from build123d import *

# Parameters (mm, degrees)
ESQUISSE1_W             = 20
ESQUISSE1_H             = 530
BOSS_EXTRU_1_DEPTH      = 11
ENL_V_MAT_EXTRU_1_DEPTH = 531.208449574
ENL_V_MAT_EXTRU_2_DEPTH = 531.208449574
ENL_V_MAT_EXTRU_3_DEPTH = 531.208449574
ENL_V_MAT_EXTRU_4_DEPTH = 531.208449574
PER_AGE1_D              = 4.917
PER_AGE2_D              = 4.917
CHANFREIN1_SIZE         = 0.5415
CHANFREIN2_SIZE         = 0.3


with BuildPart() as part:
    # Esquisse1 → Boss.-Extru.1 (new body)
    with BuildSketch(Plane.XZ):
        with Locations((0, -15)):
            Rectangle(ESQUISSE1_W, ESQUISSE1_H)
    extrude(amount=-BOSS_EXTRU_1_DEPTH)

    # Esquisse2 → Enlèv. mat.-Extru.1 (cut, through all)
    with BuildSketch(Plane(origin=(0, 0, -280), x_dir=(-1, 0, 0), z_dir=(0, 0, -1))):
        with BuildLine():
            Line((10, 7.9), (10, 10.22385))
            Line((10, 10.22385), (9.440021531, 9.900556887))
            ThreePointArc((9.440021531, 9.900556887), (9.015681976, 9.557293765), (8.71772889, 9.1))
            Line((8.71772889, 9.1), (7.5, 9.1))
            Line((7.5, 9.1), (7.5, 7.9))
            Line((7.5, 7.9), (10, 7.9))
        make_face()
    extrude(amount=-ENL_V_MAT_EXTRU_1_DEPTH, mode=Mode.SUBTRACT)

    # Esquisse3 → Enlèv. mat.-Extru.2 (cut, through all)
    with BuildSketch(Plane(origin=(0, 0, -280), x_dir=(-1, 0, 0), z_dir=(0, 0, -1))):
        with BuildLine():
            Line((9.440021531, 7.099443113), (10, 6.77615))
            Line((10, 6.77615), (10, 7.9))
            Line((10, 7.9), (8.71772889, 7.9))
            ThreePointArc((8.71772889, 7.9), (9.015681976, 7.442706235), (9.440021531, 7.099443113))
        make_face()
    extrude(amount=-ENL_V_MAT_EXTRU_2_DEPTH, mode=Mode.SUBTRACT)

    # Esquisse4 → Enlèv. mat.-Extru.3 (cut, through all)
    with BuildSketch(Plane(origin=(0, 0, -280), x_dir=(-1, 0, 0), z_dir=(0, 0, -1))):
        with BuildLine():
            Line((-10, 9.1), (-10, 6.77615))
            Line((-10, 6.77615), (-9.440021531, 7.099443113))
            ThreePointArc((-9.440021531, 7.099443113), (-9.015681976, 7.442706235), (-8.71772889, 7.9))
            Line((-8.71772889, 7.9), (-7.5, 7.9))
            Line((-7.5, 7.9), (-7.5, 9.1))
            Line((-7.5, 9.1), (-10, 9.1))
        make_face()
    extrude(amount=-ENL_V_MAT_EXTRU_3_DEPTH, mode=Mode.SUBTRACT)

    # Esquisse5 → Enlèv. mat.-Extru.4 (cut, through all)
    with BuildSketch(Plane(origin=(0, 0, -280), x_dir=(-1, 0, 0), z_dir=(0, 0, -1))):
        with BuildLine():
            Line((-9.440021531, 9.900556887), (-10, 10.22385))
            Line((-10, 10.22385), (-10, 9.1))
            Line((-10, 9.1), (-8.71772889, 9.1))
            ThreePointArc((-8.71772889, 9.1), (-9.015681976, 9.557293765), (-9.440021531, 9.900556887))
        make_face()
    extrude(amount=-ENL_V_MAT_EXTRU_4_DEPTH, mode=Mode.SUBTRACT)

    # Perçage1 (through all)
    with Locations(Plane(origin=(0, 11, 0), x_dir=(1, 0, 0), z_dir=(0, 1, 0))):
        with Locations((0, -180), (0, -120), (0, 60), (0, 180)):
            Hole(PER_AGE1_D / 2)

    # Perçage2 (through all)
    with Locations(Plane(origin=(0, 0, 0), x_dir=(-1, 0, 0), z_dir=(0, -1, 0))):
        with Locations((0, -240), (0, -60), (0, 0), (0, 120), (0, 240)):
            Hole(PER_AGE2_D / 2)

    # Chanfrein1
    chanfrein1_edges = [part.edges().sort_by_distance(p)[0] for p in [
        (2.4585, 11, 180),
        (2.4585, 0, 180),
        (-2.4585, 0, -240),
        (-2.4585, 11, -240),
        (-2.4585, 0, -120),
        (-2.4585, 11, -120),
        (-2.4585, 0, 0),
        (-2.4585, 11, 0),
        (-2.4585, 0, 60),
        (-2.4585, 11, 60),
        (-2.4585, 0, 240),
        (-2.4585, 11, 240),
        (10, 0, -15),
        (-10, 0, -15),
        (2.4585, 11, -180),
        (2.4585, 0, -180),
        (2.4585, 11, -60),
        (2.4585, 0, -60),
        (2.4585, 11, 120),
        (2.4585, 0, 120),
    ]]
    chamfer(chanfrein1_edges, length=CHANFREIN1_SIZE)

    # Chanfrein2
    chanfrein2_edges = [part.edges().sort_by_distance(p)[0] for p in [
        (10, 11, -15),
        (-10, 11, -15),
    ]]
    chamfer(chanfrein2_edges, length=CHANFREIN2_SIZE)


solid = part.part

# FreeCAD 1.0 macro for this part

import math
import FreeCAD as App
import Part
import Sketcher
from FreeCAD import Vector


def edges_at(feature, points):
    """Names of the edges that pass closest to the given points."""
    edges = feature.Shape.Edges
    near = lambda p: min(range(len(edges)), key=lambda i: edges[i].distToShape(Part.Vertex(*p))[0])
    return sorted({f"Edge{near(p) + 1}" for p in points})

doc = App.newDocument("Part")
body = doc.addObject("PartDesign::Body", "Body")

# Sketch on XZ plane
sketch1 = doc.addObject("Sketcher::SketchObject", "Sketch")
body.addObject(sketch1)
sketch1.AttachmentSupport = (doc.XZ_Plane, [""])
sketch1.MapMode = "FlatFace"
sketch1.addGeometry(Part.LineSegment(Vector(-10, 250, 0), Vector(-10, -280, 0)), False)
sketch1.addGeometry(Part.LineSegment(Vector(-10, -280, 0), Vector(10, -280, 0)), False)
sketch1.addGeometry(Part.LineSegment(Vector(10, -280, 0), Vector(10, 250, 0)), False)
sketch1.addGeometry(Part.LineSegment(Vector(10, 250, 0), Vector(-10, 250, 0)), False)
sketch1.addConstraint(Sketcher.Constraint("Coincident", 0, 2, 1, 1))
sketch1.addConstraint(Sketcher.Constraint("Coincident", 1, 2, 2, 1))
sketch1.addConstraint(Sketcher.Constraint("Coincident", 2, 2, 3, 1))
sketch1.addConstraint(Sketcher.Constraint("Coincident", 3, 2, 0, 1))
sketch1.addConstraint(Sketcher.Constraint("Vertical", 0))
sketch1.addConstraint(Sketcher.Constraint("Horizontal", 1))
sketch1.addConstraint(Sketcher.Constraint("Vertical", 2))
sketch1.addConstraint(Sketcher.Constraint("Horizontal", 3))
sketch1.addConstraint(Sketcher.Constraint("DistanceX", 1, 1, 1, 2, 20.0))
sketch1.addConstraint(Sketcher.Constraint("DistanceY", 0, 2, 0, 1, 530.0))
sketch1.addConstraint(Sketcher.Constraint("DistanceX", 0, 2, -1, 1, 10.0))
sketch1.addConstraint(Sketcher.Constraint("DistanceY", 0, 2, -1, 1, 280.0))
pad1 = doc.addObject("PartDesign::Pad", "Pad")
body.addObject(pad1)
pad1.Profile = sketch1
pad1.Length = 11
pad1.Reversed = True

# Sketch on XY plane
sketch2 = doc.addObject("Sketcher::SketchObject", "Sketch001")
body.addObject(sketch2)
sketch2.AttachmentSupport = (doc.XY_Plane, [""])
sketch2.MapMode = "FlatFace"
sketch2.AttachmentOffset = App.Placement(Vector(0, 0, -280), App.Rotation())
sketch2.addGeometry(Part.LineSegment(Vector(-10, 7.9, 0), Vector(-10, 10.2, 0)), False)
sketch2.addGeometry(Part.LineSegment(Vector(-10, 10.2, 0), Vector(-9.4, 9.9, 0)), False)
sketch2.addGeometry(Part.ArcOfCircle(Part.Circle(Vector(-10.3, 8.4, 0), Vector(0, 0, 1), 1.7), math.radians(24), math.radians(60)), False)
sketch2.addGeometry(Part.LineSegment(Vector(-8.7, 9.1, 0), Vector(-7.5, 9.1, 0)), False)
sketch2.addGeometry(Part.LineSegment(Vector(-7.5, 9.1, 0), Vector(-7.5, 7.9, 0)), False)
sketch2.addGeometry(Part.LineSegment(Vector(-7.5, 7.9, 0), Vector(-10, 7.9, 0)), False)
sketch2.addConstraint(Sketcher.Constraint("Coincident", 0, 2, 1, 1))
sketch2.addConstraint(Sketcher.Constraint("Tangent", 1, 2, 2, 2))
sketch2.addConstraint(Sketcher.Constraint("Coincident", 2, 1, 3, 1))
sketch2.addConstraint(Sketcher.Constraint("Coincident", 3, 2, 4, 1))
sketch2.addConstraint(Sketcher.Constraint("Coincident", 4, 2, 5, 1))
sketch2.addConstraint(Sketcher.Constraint("Coincident", 5, 2, 0, 1))
sketch2.addConstraint(Sketcher.Constraint("Vertical", 0))
sketch2.addConstraint(Sketcher.Constraint("Horizontal", 3))
sketch2.addConstraint(Sketcher.Constraint("Vertical", 4))
sketch2.addConstraint(Sketcher.Constraint("Horizontal", 5))
sketch2.addConstraint(Sketcher.Constraint("Radius", 2, 1.75))
sketch2.addConstraint(Sketcher.Constraint("DistanceX", 5, 2, 5, 1, 2.5))
sketch2.addConstraint(Sketcher.Constraint("DistanceY", 4, 2, 4, 1, 1.2))
sketch2.addConstraint(Sketcher.Constraint("DistanceX", 0, 2, -1, 1, 10.0))
sketch2.addConstraint(Sketcher.Constraint("DistanceY", -1, 1, 2, 1, 9.1))
sketch2.addConstraint(Sketcher.Constraint("DistanceX", 2, 3, -1, 1, 10.315))
sketch2.addConstraint(Sketcher.Constraint("DistanceY", -1, 1, 2, 3, 8.385))
sketch2.addConstraint(Sketcher.Constraint("DistanceY", 0, 1, 0, 2, 2.32385))
pocket1 = doc.addObject("PartDesign::Pocket", "Pocket")
body.addObject(pocket1)
pocket1.Profile = sketch2
pocket1.Type = "ThroughAll"
pocket1.Reversed = True

# Sketch on XY plane
sketch3 = doc.addObject("Sketcher::SketchObject", "Sketch002")
body.addObject(sketch3)
sketch3.AttachmentSupport = (doc.XY_Plane, [""])
sketch3.MapMode = "FlatFace"
sketch3.AttachmentOffset = App.Placement(Vector(0, 0, -280), App.Rotation())
sketch3.addGeometry(Part.LineSegment(Vector(-9.4, 7.1, 0), Vector(-10, 6.8, 0)), False)
sketch3.addGeometry(Part.LineSegment(Vector(-10, 6.8, 0), Vector(-10, 7.9, 0)), False)
sketch3.addGeometry(Part.LineSegment(Vector(-10, 7.9, 0), Vector(-8.7, 7.9, 0)), False)
sketch3.addGeometry(Part.ArcOfCircle(Part.Circle(Vector(-10.3, 8.6, 0), Vector(0, 0, 1), 1.7), math.radians(-60), math.radians(-24)), False)
sketch3.addConstraint(Sketcher.Constraint("Coincident", 0, 2, 1, 1))
sketch3.addConstraint(Sketcher.Constraint("Coincident", 1, 2, 2, 1))
sketch3.addConstraint(Sketcher.Constraint("Coincident", 2, 2, 3, 2))
sketch3.addConstraint(Sketcher.Constraint("Tangent", 3, 1, 0, 1))
sketch3.addConstraint(Sketcher.Constraint("Vertical", 1))
sketch3.addConstraint(Sketcher.Constraint("Horizontal", 2))
sketch3.addConstraint(Sketcher.Constraint("Radius", 3, 1.75))
sketch3.addConstraint(Sketcher.Constraint("DistanceX", 0, 2, -1, 1, 10.0))
sketch3.addConstraint(Sketcher.Constraint("DistanceY", -1, 1, 1, 2, 7.9))
sketch3.addConstraint(Sketcher.Constraint("DistanceX", 3, 3, -1, 1, 10.315))
sketch3.addConstraint(Sketcher.Constraint("DistanceY", -1, 1, 3, 3, 8.615))
sketch3.addConstraint(Sketcher.Constraint("DistanceY", 1, 1, 1, 2, 1.12385))
pocket2 = doc.addObject("PartDesign::Pocket", "Pocket001")
body.addObject(pocket2)
pocket2.Profile = sketch3
pocket2.Type = "ThroughAll"
pocket2.Reversed = True

# Sketch on XY plane
sketch4 = doc.addObject("Sketcher::SketchObject", "Sketch003")
body.addObject(sketch4)
sketch4.AttachmentSupport = (doc.XY_Plane, [""])
sketch4.MapMode = "FlatFace"
sketch4.AttachmentOffset = App.Placement(Vector(0, 0, -280), App.Rotation())
sketch4.addGeometry(Part.LineSegment(Vector(10, 9.1, 0), Vector(10, 6.8, 0)), False)
sketch4.addGeometry(Part.LineSegment(Vector(10, 6.8, 0), Vector(9.4, 7.1, 0)), False)
sketch4.addGeometry(Part.ArcOfCircle(Part.Circle(Vector(10.3, 8.6, 0), Vector(0, 0, 1), 1.7), math.radians(-156), math.radians(-120)), False)
sketch4.addGeometry(Part.LineSegment(Vector(8.7, 7.9, 0), Vector(7.5, 7.9, 0)), False)
sketch4.addGeometry(Part.LineSegment(Vector(7.5, 7.9, 0), Vector(7.5, 9.1, 0)), False)
sketch4.addGeometry(Part.LineSegment(Vector(7.5, 9.1, 0), Vector(10, 9.1, 0)), False)
sketch4.addConstraint(Sketcher.Constraint("Coincident", 0, 2, 1, 1))
sketch4.addConstraint(Sketcher.Constraint("Tangent", 1, 2, 2, 2))
sketch4.addConstraint(Sketcher.Constraint("Coincident", 2, 1, 3, 1))
sketch4.addConstraint(Sketcher.Constraint("Coincident", 3, 2, 4, 1))
sketch4.addConstraint(Sketcher.Constraint("Coincident", 4, 2, 5, 1))
sketch4.addConstraint(Sketcher.Constraint("Coincident", 5, 2, 0, 1))
sketch4.addConstraint(Sketcher.Constraint("Vertical", 0))
sketch4.addConstraint(Sketcher.Constraint("Horizontal", 3))
sketch4.addConstraint(Sketcher.Constraint("Vertical", 4))
sketch4.addConstraint(Sketcher.Constraint("Horizontal", 5))
sketch4.addConstraint(Sketcher.Constraint("Radius", 2, 1.75))
sketch4.addConstraint(Sketcher.Constraint("DistanceX", 5, 1, 5, 2, 2.5))
sketch4.addConstraint(Sketcher.Constraint("DistanceY", 4, 1, 4, 2, 1.2))
sketch4.addConstraint(Sketcher.Constraint("DistanceX", -1, 1, 0, 2, 10.0))
sketch4.addConstraint(Sketcher.Constraint("DistanceY", -1, 1, 2, 1, 7.9))
sketch4.addConstraint(Sketcher.Constraint("DistanceX", -1, 1, 2, 3, 10.315))
sketch4.addConstraint(Sketcher.Constraint("DistanceY", -1, 1, 2, 3, 8.615))
sketch4.addConstraint(Sketcher.Constraint("DistanceY", 0, 2, 0, 1, 2.32385))
pocket3 = doc.addObject("PartDesign::Pocket", "Pocket002")
body.addObject(pocket3)
pocket3.Profile = sketch4
pocket3.Type = "ThroughAll"
pocket3.Reversed = True

# Sketch on XY plane
sketch5 = doc.addObject("Sketcher::SketchObject", "Sketch004")
body.addObject(sketch5)
sketch5.AttachmentSupport = (doc.XY_Plane, [""])
sketch5.MapMode = "FlatFace"
sketch5.AttachmentOffset = App.Placement(Vector(0, 0, -280), App.Rotation())
sketch5.addGeometry(Part.LineSegment(Vector(9.4, 9.9, 0), Vector(10, 10.2, 0)), False)
sketch5.addGeometry(Part.LineSegment(Vector(10, 10.2, 0), Vector(10, 9.1, 0)), False)
sketch5.addGeometry(Part.LineSegment(Vector(10, 9.1, 0), Vector(8.7, 9.1, 0)), False)
sketch5.addGeometry(Part.ArcOfCircle(Part.Circle(Vector(10.3, 8.4, 0), Vector(0, 0, 1), 1.7), math.radians(120), math.radians(156)), False)
sketch5.addConstraint(Sketcher.Constraint("Coincident", 0, 2, 1, 1))
sketch5.addConstraint(Sketcher.Constraint("Coincident", 1, 2, 2, 1))
sketch5.addConstraint(Sketcher.Constraint("Coincident", 2, 2, 3, 2))
sketch5.addConstraint(Sketcher.Constraint("Tangent", 3, 1, 0, 1))
sketch5.addConstraint(Sketcher.Constraint("Vertical", 1))
sketch5.addConstraint(Sketcher.Constraint("Horizontal", 2))
sketch5.addConstraint(Sketcher.Constraint("Radius", 3, 1.75))
sketch5.addConstraint(Sketcher.Constraint("DistanceX", -1, 1, 0, 2, 10.0))
sketch5.addConstraint(Sketcher.Constraint("DistanceY", -1, 1, 1, 2, 9.1))
sketch5.addConstraint(Sketcher.Constraint("DistanceX", -1, 1, 3, 3, 10.315))
sketch5.addConstraint(Sketcher.Constraint("DistanceY", -1, 1, 3, 3, 8.385))
sketch5.addConstraint(Sketcher.Constraint("DistanceY", 1, 2, 1, 1, 1.12385))
pocket4 = doc.addObject("PartDesign::Pocket", "Pocket003")
body.addObject(pocket4)
pocket4.Profile = sketch5
pocket4.Type = "ThroughAll"
pocket4.Reversed = True

# Sketch on XZ plane
sketch6 = doc.addObject("Sketcher::SketchObject", "Sketch005")
body.addObject(sketch6)
sketch6.AttachmentSupport = (doc.XZ_Plane, [""])
sketch6.MapMode = "FlatFace"
sketch6.AttachmentOffset = App.Placement(Vector(0, 0, -11), App.Rotation())
sketch6.addGeometry(Part.Circle(Vector(0, 180, 0), Vector(0, 0, 1), 2.5), False)
sketch6.addGeometry(Part.Circle(Vector(0, 120, 0), Vector(0, 0, 1), 2.5), False)
sketch6.addGeometry(Part.Circle(Vector(0, -60, 0), Vector(0, 0, 1), 2.5), False)
sketch6.addGeometry(Part.Circle(Vector(0, -180, 0), Vector(0, 0, 1), 2.5), False)
sketch6.addConstraint(Sketcher.Constraint("Equal", 0, 1))
sketch6.addConstraint(Sketcher.Constraint("Equal", 1, 2))
sketch6.addConstraint(Sketcher.Constraint("Equal", 2, 3))
sketch6.addConstraint(Sketcher.Constraint("Symmetric", 0, 3, 3, 3, -1, 1))
sketch6.addConstraint(Sketcher.Constraint("PointOnObject", 0, 3, -2))
sketch6.addConstraint(Sketcher.Constraint("PointOnObject", 1, 3, -2))
sketch6.addConstraint(Sketcher.Constraint("PointOnObject", 2, 3, -2))
sketch6.addConstraint(Sketcher.Constraint("Diameter", 0, 4.917))
sketch6.addConstraint(Sketcher.Constraint("DistanceY", -1, 1, 0, 3, 180.0))
sketch6.addConstraint(Sketcher.Constraint("DistanceY", -1, 1, 1, 3, 120.0))
sketch6.addConstraint(Sketcher.Constraint("DistanceY", 2, 3, -1, 1, 60.0))
doc.recompute()
hole = doc.addObject("PartDesign::Hole", "Hole")
body.addObject(hole)
hole.Profile = sketch6
hole.ThreadType = "None"
hole.Diameter = 4.917
hole.DepthType = "ThroughAll"
hole.Reversed = True

# Sketch on XZ plane
sketch7 = doc.addObject("Sketcher::SketchObject", "Sketch006")
body.addObject(sketch7)
sketch7.AttachmentSupport = (doc.XZ_Plane, [""])
sketch7.MapMode = "FlatFace"
sketch7.addGeometry(Part.Circle(Vector(0, 240, 0), Vector(0, 0, 1), 2.5), False)
sketch7.addGeometry(Part.Circle(Vector(0, 60, 0), Vector(0, 0, 1), 2.5), False)
sketch7.addGeometry(Part.Circle(Vector(0, 0, 0), Vector(0, 0, 1), 2.5), False)
sketch7.addGeometry(Part.Circle(Vector(0, -120, 0), Vector(0, 0, 1), 2.5), False)
sketch7.addGeometry(Part.Circle(Vector(0, -240, 0), Vector(0, 0, 1), 2.5), False)
sketch7.addConstraint(Sketcher.Constraint("Coincident", 2, 3, -1, 1))
sketch7.addConstraint(Sketcher.Constraint("Equal", 0, 1))
sketch7.addConstraint(Sketcher.Constraint("Equal", 1, 2))
sketch7.addConstraint(Sketcher.Constraint("Equal", 2, 3))
sketch7.addConstraint(Sketcher.Constraint("Equal", 3, 4))
sketch7.addConstraint(Sketcher.Constraint("Symmetric", 0, 3, 4, 3, -1, 1))
sketch7.addConstraint(Sketcher.Constraint("PointOnObject", 0, 3, -2))
sketch7.addConstraint(Sketcher.Constraint("PointOnObject", 1, 3, -2))
sketch7.addConstraint(Sketcher.Constraint("PointOnObject", 3, 3, -2))
sketch7.addConstraint(Sketcher.Constraint("Diameter", 0, 4.917))
sketch7.addConstraint(Sketcher.Constraint("DistanceY", -1, 1, 0, 3, 240.0))
sketch7.addConstraint(Sketcher.Constraint("DistanceY", -1, 1, 1, 3, 60.0))
sketch7.addConstraint(Sketcher.Constraint("DistanceY", 3, 3, -1, 1, 120.0))
doc.recompute()
hole2 = doc.addObject("PartDesign::Hole", "Hole001")
body.addObject(hole2)
hole2.Profile = sketch7
hole2.ThreadType = "None"
hole2.Diameter = 4.917
hole2.DepthType = "ThroughAll"
doc.recompute()

chamfer = doc.addObject("PartDesign::Chamfer", "Chamfer")
body.addObject(chamfer)
chamfer.Base = (hole2, edges_at(hole2, [
    (2.458, 11, 180),
    (2.458, 0, 180),
    (-2.458, 0, -240),
    (-2.458, 11, -240),
    (-2.458, 0, -120),
    (-2.458, 11, -120),
    (-2.458, 0, 0),
    (-2.458, 11, 0),
    (-2.458, 0, 60),
    (-2.458, 11, 60),
    (-2.458, 0, 240),
    (-2.458, 11, 240),
    (10, 0, -15),
    (-10, 0, -15),
    (2.458, 11, -180),
    (2.458, 0, -180),
    (2.458, 11, -60),
    (2.458, 0, -60),
    (2.458, 11, 120),
    (2.458, 0, 120),
]))
chamfer.Size = 0.5415
doc.recompute()

chamfer2 = doc.addObject("PartDesign::Chamfer", "Chamfer001")
body.addObject(chamfer2)
chamfer2.Base = (chamfer, edges_at(chamfer, [(10, 11, -15), (-10, 11, -15)]))
chamfer2.Size = 0.3

doc.recompute()
